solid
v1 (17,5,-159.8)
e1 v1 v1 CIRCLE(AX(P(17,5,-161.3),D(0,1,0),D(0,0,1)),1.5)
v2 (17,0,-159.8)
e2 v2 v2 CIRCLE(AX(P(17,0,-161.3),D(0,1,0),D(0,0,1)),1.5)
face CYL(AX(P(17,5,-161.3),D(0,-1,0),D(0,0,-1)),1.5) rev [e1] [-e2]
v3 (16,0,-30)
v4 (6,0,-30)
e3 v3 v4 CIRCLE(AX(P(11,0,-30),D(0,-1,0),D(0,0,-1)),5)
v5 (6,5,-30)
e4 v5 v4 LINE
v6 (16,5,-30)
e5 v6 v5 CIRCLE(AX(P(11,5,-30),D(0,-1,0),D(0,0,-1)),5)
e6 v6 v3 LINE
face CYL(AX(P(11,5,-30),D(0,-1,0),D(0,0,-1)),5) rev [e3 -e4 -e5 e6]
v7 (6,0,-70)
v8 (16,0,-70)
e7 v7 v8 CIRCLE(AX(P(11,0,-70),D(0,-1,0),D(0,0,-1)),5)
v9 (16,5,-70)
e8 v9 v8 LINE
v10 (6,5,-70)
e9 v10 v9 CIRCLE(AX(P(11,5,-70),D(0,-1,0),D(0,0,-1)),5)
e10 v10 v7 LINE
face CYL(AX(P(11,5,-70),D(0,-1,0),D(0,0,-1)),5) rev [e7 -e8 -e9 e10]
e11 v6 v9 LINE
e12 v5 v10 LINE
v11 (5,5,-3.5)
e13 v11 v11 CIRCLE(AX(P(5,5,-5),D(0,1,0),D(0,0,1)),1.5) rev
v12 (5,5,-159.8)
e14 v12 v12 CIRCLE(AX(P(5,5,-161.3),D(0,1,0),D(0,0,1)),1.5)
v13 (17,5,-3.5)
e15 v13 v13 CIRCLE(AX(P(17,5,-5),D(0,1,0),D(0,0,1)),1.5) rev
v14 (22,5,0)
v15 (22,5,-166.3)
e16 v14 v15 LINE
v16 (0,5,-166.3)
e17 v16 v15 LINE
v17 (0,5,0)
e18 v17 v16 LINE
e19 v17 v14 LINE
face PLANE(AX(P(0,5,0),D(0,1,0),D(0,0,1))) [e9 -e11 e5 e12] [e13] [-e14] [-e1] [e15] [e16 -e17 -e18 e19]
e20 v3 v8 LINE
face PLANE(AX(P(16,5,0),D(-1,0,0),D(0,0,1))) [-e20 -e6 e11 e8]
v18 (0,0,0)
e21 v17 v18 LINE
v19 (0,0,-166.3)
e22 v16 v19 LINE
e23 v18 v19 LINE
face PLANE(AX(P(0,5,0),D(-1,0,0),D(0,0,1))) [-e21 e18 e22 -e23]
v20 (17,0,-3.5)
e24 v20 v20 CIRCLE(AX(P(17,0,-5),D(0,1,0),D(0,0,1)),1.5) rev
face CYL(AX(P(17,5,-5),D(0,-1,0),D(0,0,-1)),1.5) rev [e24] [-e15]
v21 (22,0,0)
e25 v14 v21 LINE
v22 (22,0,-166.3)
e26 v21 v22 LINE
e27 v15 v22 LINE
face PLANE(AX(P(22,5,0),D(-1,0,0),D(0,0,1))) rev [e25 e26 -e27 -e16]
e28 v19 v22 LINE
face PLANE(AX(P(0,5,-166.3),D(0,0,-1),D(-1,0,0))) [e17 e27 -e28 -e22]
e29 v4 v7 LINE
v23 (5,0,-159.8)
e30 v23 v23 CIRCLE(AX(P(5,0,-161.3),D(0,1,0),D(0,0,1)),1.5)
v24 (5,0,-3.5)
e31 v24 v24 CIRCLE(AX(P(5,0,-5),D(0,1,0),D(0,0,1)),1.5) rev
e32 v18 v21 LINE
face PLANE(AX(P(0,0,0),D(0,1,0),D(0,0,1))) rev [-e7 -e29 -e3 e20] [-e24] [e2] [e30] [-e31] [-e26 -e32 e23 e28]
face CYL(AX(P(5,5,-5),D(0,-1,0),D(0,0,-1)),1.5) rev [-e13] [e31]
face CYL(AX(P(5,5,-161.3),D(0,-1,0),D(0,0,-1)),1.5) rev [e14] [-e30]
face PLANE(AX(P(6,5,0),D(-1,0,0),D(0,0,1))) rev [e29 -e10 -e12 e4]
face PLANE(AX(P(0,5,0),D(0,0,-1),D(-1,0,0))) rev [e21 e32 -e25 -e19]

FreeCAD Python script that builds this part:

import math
import FreeCAD as App
import Part
import Sketcher

V = App.Vector
Q = App.Units.Quantity

doc = App.newDocument("Part")
body = doc.addObject("PartDesign::Body", "Body")

sketch1 = body.newObject("Sketcher::SketchObject", "Sketch")
sketch1.AttachmentSupport = (doc.getObject("XZ_Plane"), [""])
sketch1.MapMode = "FlatFace"
sketch1.addGeometry([
    Part.LineSegment(V(0, -166.3, 0), V(0, 0, 0)),
    Part.LineSegment(V(0, 0, 0), V(22, 0, 0)),
    Part.LineSegment(V(22, 0, 0), V(22, -166.3, 0)),
    Part.LineSegment(V(22, -166.3, 0), V(0, -166.3, 0)),
    Part.Circle(V(5, -5, 0), V(0, 0, 1), 1.5),
    Part.Circle(V(17, -5, 0), V(0, 0, 1), 1.5),
    Part.Circle(V(5, -161.3, 0), V(0, 0, 1), 1.5),
    Part.Circle(V(17, -161.3, 0), V(0, 0, 1), 1.5),
], False)
sketch1.addConstraint([
    Sketcher.Constraint("Coincident", 0, 2, 1, 1),
    Sketcher.Constraint("Coincident", 1, 2, 2, 1),
    Sketcher.Constraint("Coincident", 2, 2, 3, 1),
    Sketcher.Constraint("Coincident", 3, 2, 0, 1),
    Sketcher.Constraint("Vertical", 0),
    Sketcher.Constraint("Horizontal", 1),
    Sketcher.Constraint("Vertical", 2),
    Sketcher.Constraint("Horizontal", 3),
    Sketcher.Constraint("Coincident", 0, 2, -1, 1),
    Sketcher.Constraint("Equal", 4, 5),
    Sketcher.Constraint("Equal", 5, 6),
    Sketcher.Constraint("Equal", 6, 7),
    Sketcher.Constraint("Horizontal", 4, 3, 5, 3),
    Sketcher.Constraint("Horizontal", 6, 3, 7, 3),
    Sketcher.Constraint("Vertical", 4, 3, 6, 3),
    Sketcher.Constraint("Vertical", 5, 3, 7, 3),
    Sketcher.Constraint("Diameter", 4, Q("3 mm")),
    Sketcher.Constraint("DistanceX", 1, 1, 1, 2, Q("22 mm")),
    Sketcher.Constraint("DistanceY", 0, 1, 0, 2, Q("166.3 mm")),
    Sketcher.Constraint("DistanceX", -1, 1, 4, 3, Q("5 mm")),
    Sketcher.Constraint("DistanceY", 4, 3, -1, 1, Q("5 mm")),
    Sketcher.Constraint("DistanceX", -1, 1, 5, 3, Q("17 mm")),
    Sketcher.Constraint("DistanceY", 2, 2, 7, 3, Q("5 mm")),
])
pad1 = body.newObject("PartDesign::Pad", "Pad")
pad1.Profile = sketch1
pad1.Length = 5
pad1.Reversed = True

sketch2 = body.newObject("Sketcher::SketchObject", "Sketch001")
sketch2.AttachmentSupport = (doc.getObject("XZ_Plane"), [""])
sketch2.MapMode = "FlatFace"
sketch2.addGeometry([
    Part.LineSegment(V(16, -70, 0), V(16, -30, 0)),
    Part.ArcOfCircle(Part.Circle(V(11, -30, 0), V(0, 0, 1), 5), math.radians(0), math.radians(180)),
    Part.LineSegment(V(6, -30, 0), V(6, -70, 0)),
    Part.ArcOfCircle(Part.Circle(V(11, -70, 0), V(0, 0, 1), 5), math.radians(180), math.radians(360)),
], False)
sketch2.addConstraint([
    Sketcher.Constraint("Tangent", 0, 2, 1, 1),
    Sketcher.Constraint("Tangent", 1, 2, 2, 1),
    Sketcher.Constraint("Tangent", 2, 2, 3, 1),
    Sketcher.Constraint("Tangent", 3, 2, 0, 1),
    Sketcher.Constraint("Vertical", 0),
    Sketcher.Constraint("Vertical", 2),
    Sketcher.Constraint("Radius", 1, Q("5 mm")),
    Sketcher.Constraint("DistanceY", 0, 1, 0, 2, Q("40 mm")),
    Sketcher.Constraint("DistanceX", -1, 1, 1, 3, Q("11 mm")),
    Sketcher.Constraint("DistanceY", 1, 3, -1, 1, Q("30 mm")),
])
pocket1 = body.newObject("PartDesign::Pocket", "Pocket")
pocket1.Profile = sketch2
pocket1.Length = 5

doc.recompute()
